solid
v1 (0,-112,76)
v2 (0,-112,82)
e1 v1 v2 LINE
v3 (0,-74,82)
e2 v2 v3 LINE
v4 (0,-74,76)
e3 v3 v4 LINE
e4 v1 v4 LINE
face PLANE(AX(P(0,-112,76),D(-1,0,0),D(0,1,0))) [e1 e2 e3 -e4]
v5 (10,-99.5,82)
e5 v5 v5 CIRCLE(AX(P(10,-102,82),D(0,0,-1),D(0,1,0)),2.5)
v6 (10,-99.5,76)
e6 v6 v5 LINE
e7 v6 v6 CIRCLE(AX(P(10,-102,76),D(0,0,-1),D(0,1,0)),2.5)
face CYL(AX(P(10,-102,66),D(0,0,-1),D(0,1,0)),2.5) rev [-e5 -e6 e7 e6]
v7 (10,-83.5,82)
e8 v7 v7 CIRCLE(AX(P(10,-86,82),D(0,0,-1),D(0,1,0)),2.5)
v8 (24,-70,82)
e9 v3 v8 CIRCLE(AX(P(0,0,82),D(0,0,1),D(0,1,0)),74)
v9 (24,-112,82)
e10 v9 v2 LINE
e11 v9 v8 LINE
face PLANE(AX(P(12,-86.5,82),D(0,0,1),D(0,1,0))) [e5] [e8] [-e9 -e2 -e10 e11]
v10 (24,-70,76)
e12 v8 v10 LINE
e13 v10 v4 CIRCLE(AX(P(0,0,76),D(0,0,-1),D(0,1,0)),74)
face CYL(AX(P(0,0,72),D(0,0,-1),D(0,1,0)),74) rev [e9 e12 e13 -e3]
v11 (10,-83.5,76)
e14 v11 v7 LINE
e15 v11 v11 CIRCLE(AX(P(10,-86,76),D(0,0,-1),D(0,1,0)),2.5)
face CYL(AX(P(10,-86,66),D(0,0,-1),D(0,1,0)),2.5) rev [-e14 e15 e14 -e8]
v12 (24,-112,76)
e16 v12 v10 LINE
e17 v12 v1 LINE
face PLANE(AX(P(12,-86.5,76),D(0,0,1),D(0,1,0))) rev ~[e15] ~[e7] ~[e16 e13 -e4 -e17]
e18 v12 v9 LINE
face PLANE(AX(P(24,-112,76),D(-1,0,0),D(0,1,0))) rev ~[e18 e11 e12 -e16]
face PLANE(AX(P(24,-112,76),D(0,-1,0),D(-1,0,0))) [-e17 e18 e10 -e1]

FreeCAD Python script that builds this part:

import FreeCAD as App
import Part
import Sketcher

V = App.Vector
Q = App.Units.Quantity


def add_polygon(sketch, points):
    """Adds a closed chain of lines whose ends are joined by coincident constraints."""
    first, n = sketch.GeometryCount, len(points)
    for a, b in zip(points, points[1:] + points[:1]):
        sketch.addGeometry(Part.LineSegment(App.Vector(*a, 0), App.Vector(*b, 0)), False)
    for i in range(n):
        sketch.addConstraint(Sketcher.Constraint("Coincident", first + i, 2, first + (i + 1) % n, 1))

doc = App.newDocument("Part")
body = doc.addObject("PartDesign::Body", "Body")

sketch1 = doc.addObject("Sketcher::SketchObject", "Sketch")
body.addObject(sketch1)
sketch1.AttachmentSupport = (doc.XY_Plane, [""])
sketch1.MapMode = "FlatFace"
sketch1.AttachmentOffset = App.Placement(V(0, 0, 66), App.Rotation())
sketch1.addGeometry(Part.Circle(V(-86, -10, 0), V(0, 0, 1), 2.5), False)
sketch1.addConstraint([
    Sketcher.Constraint("Diameter", 0, Q("5 mm")),
    Sketcher.Constraint("DistanceX", 0, 3, -1, 1, Q("86 mm")),
    Sketcher.Constraint("DistanceY", 0, 3, -1, 1, Q("10 mm")),
])
pad1 = doc.addObject("PartDesign::Pad", "Pad")
body.addObject(pad1)
pad1.Profile = sketch1
pad1.Length = 20
body2 = doc.addObject("PartDesign::Body", "Body001")
body2.AllowCompound = True

sketch2 = doc.addObject("Sketcher::SketchObject", "Sketch001")
body2.addObject(sketch2)
sketch2.AttachmentSupport = (doc.getObject("XY_Plane001"), [""])
sketch2.MapMode = "FlatFace"
sketch2.AttachmentOffset = App.Placement(V(0, 0, 66), App.Rotation())
sketch2.addGeometry(Part.Circle(V(-102, -10, 0), V(0, 0, 1), 2.5), False)
sketch2.addConstraint([
    Sketcher.Constraint("Diameter", 0, Q("5 mm")),
    Sketcher.Constraint("DistanceX", 0, 3, -1, 1, Q("102 mm")),
    Sketcher.Constraint("DistanceY", 0, 3, -1, 1, Q("10 mm")),
])
pad2 = doc.addObject("PartDesign::Pad", "Pad001")
body2.addObject(pad2)
pad2.Profile = sketch2
pad2.Length = 20
doc.recompute()

boolean = doc.addObject("PartDesign::Boolean", "Boolean")
body2.addObject(boolean)
boolean.Type = "Fuse"
boolean.addObjects([body])
body3 = doc.addObject("PartDesign::Body", "Body002")

sketch3 = doc.addObject("Sketcher::SketchObject", "Sketch002")
body3.addObject(sketch3)
sketch3.AttachmentSupport = (doc.getObject("XY_Plane002"), [""])
sketch3.MapMode = "FlatFace"
sketch3.AttachmentOffset = App.Placement(V(0, 0, 72), App.Rotation())
sketch3.addGeometry(Part.Circle(V(0, 0, 0), V(0, 0, 1), 74), False)
sketch3.addConstraint([
    Sketcher.Constraint("Coincident", 0, 3, -1, 1),
    Sketcher.Constraint("Diameter", 0, Q("148 mm")),
])
pad3 = doc.addObject("PartDesign::Pad", "Pad002")
body3.addObject(pad3)
pad3.Profile = sketch3
pad3.Length = 10
body4 = doc.addObject("PartDesign::Body", "Body003")

sketch4 = doc.addObject("Sketcher::SketchObject", "Sketch003")
body4.addObject(sketch4)
sketch4.AttachmentSupport = (doc.getObject("XY_Plane003"), [""])
sketch4.MapMode = "FlatFace"
sketch4.AttachmentOffset = App.Placement(V(0, 0, 76), App.Rotation())
add_polygon(sketch4, [(-112, 0), (-112, -24), (-61, -24), (-61, 0)])
sketch4.addConstraint([
    Sketcher.Constraint("Vertical", 0),
    Sketcher.Constraint("Horizontal", 1),
    Sketcher.Constraint("Vertical", 2),
    Sketcher.Constraint("Horizontal", 3),
    Sketcher.Constraint("PointOnObject", 2, 2, -1),
    Sketcher.Constraint("DistanceX", 1, 1, 1, 2, Q("51 mm")),
    Sketcher.Constraint("DistanceY", 0, 2, 0, 1, Q("24 mm")),
    Sketcher.Constraint("DistanceX", 0, 2, -1, 1, Q("112 mm")),
])
pad4 = doc.addObject("PartDesign::Pad", "Pad003")
body4.addObject(pad4)
pad4.Profile = sketch4
pad4.Length = 6
doc.recompute()

boolean2 = doc.addObject("PartDesign::Boolean", "Boolean001")
body4.addObject(boolean2)
boolean2.Type = "Cut"
boolean2.addObjects([body3])
doc.recompute()

boolean3 = doc.addObject("PartDesign::Boolean", "Boolean002")
body4.addObject(boolean3)
boolean3.Type = "Cut"
boolean3.addObjects([body2])
body5 = doc.addObject("PartDesign::Body", "Body004")
doc.recompute()

body4.Placement = App.Placement(V(0, 0, 0), App.Rotation(V(0, 0, 1), 90))
boolean4 = doc.addObject("PartDesign::Boolean", "Boolean003")
body5.addObject(boolean4)
boolean4.Type = "Fuse"
boolean4.addObjects([body4])

doc.recompute()
